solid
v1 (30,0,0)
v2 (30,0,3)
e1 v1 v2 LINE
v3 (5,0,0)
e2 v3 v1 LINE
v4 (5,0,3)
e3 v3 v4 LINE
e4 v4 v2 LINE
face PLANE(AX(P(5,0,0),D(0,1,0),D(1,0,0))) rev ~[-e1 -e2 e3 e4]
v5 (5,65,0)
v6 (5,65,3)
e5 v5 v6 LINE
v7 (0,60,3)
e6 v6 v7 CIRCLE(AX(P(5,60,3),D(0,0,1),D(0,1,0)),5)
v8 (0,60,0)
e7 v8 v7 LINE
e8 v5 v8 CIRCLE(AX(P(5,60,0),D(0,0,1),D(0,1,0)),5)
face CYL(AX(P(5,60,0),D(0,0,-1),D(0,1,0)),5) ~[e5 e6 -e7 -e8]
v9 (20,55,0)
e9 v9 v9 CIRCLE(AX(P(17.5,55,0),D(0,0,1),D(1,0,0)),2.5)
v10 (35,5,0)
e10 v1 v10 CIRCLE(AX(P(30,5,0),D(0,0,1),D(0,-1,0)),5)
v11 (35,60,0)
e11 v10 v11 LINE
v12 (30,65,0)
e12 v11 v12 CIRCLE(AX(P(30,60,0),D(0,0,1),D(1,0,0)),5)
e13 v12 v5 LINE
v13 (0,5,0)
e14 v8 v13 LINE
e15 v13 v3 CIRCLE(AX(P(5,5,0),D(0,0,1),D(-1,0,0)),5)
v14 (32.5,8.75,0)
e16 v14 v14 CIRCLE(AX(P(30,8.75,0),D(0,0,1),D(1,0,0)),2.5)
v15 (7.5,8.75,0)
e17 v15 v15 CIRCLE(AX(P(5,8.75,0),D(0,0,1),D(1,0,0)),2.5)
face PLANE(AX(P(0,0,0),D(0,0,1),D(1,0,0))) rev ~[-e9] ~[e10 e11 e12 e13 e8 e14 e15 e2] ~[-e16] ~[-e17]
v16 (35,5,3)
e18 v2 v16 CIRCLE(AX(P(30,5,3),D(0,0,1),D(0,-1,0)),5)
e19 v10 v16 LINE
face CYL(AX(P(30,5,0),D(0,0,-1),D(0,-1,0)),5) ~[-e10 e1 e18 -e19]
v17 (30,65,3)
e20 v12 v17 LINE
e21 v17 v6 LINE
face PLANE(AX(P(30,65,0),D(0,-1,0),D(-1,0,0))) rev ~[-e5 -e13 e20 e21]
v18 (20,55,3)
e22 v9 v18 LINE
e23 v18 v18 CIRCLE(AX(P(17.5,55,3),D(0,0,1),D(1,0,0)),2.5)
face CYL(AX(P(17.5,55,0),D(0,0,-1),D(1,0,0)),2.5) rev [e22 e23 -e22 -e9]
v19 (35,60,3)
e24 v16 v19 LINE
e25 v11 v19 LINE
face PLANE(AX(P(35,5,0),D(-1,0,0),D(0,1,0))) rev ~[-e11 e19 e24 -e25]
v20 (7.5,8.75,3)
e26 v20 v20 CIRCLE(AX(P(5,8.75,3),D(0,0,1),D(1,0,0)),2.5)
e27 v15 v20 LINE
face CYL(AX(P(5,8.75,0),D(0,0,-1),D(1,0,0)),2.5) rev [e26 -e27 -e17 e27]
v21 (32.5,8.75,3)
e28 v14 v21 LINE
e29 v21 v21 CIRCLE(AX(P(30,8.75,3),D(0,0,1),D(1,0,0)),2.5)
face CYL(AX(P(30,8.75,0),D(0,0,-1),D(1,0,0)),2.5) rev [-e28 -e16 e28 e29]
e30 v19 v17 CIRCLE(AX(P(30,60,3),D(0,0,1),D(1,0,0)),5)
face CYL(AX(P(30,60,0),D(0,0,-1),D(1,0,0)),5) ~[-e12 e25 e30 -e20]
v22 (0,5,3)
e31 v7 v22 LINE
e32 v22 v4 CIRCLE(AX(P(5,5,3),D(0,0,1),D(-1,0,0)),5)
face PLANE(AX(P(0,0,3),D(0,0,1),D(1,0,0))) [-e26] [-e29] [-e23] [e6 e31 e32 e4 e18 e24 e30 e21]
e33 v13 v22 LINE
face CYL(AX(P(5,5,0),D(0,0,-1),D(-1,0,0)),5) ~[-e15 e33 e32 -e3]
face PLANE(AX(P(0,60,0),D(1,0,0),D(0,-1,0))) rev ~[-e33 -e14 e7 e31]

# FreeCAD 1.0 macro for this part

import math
import FreeCAD as App
import Part
import Sketcher
Q = App.Units.Quantity

doc = App.newDocument("Part")
body = doc.addObject("PartDesign::Body", "Body")

sketch1 = body.newObject("Sketcher::SketchObject", "Sketch")
sketch1.AttachmentSupport = (doc.getObject("XY_Plane"), [""])
sketch1.MapMode = "FlatFace"
sketch1.addGeometry([
    Part.ArcOfCircle(Part.Circle(App.Vector(5, 5, 0), App.Vector(0, 0, 1), 5), math.radians(180), math.radians(270)),
    Part.LineSegment(App.Vector(5, 0, 0), App.Vector(30, 0, 0)),
    Part.ArcOfCircle(Part.Circle(App.Vector(30, 5, 0), App.Vector(0, 0, 1), 5), math.radians(-90), math.radians(0)),
    Part.LineSegment(App.Vector(35, 5, 0), App.Vector(35, 60, 0)),
    Part.ArcOfCircle(Part.Circle(App.Vector(30, 60, 0), App.Vector(0, 0, 1), 5), math.radians(0), math.radians(90)),
    Part.LineSegment(App.Vector(30, 65, 0), App.Vector(5, 65, 0)),
    Part.ArcOfCircle(Part.Circle(App.Vector(5, 60, 0), App.Vector(0, 0, 1), 5), math.radians(90), math.radians(180)),
    Part.LineSegment(App.Vector(0, 60, 0), App.Vector(0, 5, 0)),
    Part.Circle(App.Vector(5, 8.8, 0), App.Vector(0, 0, 1), 2.5),
    Part.Circle(App.Vector(30, 8.8, 0), App.Vector(0, 0, 1), 2.5),
    Part.Circle(App.Vector(17.5, 55, 0), App.Vector(0, 0, 1), 2.5),
], False)
sketch1.addConstraint([
    Sketcher.Constraint("Tangent", 0, 2, 1, 1),
    Sketcher.Constraint("Tangent", 1, 2, 2, 1),
    Sketcher.Constraint("Tangent", 2, 2, 3, 1),
    Sketcher.Constraint("Tangent", 3, 2, 4, 1),
    Sketcher.Constraint("Tangent", 4, 2, 5, 1),
    Sketcher.Constraint("Tangent", 5, 2, 6, 1),
    Sketcher.Constraint("Tangent", 6, 2, 7, 1),
    Sketcher.Constraint("Tangent", 7, 2, 0, 1),
    Sketcher.Constraint("Horizontal", 1),
    Sketcher.Constraint("Vertical", 3),
    Sketcher.Constraint("Horizontal", 5),
    Sketcher.Constraint("Vertical", 7),
    Sketcher.Constraint("Equal", 0, 2),
    Sketcher.Constraint("Equal", 2, 4),
    Sketcher.Constraint("Equal", 4, 6),
    Sketcher.Constraint("Equal", 8, 9),
    Sketcher.Constraint("Equal", 9, 10),
    Sketcher.Constraint("PointOnObject", 0, 2, -1),
    Sketcher.Constraint("PointOnObject", 6, 2, -2),
    Sketcher.Constraint("Horizontal", 8, 3, 9, 3),
    Sketcher.Constraint("Vertical", 6, 3, 8, 3),
    Sketcher.Constraint("Vertical", 4, 3, 9, 3),
    Sketcher.Constraint("Diameter", 8, Q("5 mm")),
    Sketcher.Constraint("Radius", 0, Q("5 mm")),
    Sketcher.Constraint("DistanceX", 1, 1, 1, 2, Q("25 mm")),
    Sketcher.Constraint("DistanceY", 3, 1, 3, 2, Q("55 mm")),
    Sketcher.Constraint("DistanceY", -1, 1, 10, 3, Q("55 mm")),
    Sketcher.Constraint("DistanceX", -1, 1, 10, 3, Q("17.5 mm")),
    Sketcher.Constraint("DistanceY", -1, 1, 8, 3, Q("8.75 mm")),
])
pad1 = body.newObject("PartDesign::Pad", "Pad")
pad1.Profile = sketch1
pad1.Length = 3

doc.recompute()
